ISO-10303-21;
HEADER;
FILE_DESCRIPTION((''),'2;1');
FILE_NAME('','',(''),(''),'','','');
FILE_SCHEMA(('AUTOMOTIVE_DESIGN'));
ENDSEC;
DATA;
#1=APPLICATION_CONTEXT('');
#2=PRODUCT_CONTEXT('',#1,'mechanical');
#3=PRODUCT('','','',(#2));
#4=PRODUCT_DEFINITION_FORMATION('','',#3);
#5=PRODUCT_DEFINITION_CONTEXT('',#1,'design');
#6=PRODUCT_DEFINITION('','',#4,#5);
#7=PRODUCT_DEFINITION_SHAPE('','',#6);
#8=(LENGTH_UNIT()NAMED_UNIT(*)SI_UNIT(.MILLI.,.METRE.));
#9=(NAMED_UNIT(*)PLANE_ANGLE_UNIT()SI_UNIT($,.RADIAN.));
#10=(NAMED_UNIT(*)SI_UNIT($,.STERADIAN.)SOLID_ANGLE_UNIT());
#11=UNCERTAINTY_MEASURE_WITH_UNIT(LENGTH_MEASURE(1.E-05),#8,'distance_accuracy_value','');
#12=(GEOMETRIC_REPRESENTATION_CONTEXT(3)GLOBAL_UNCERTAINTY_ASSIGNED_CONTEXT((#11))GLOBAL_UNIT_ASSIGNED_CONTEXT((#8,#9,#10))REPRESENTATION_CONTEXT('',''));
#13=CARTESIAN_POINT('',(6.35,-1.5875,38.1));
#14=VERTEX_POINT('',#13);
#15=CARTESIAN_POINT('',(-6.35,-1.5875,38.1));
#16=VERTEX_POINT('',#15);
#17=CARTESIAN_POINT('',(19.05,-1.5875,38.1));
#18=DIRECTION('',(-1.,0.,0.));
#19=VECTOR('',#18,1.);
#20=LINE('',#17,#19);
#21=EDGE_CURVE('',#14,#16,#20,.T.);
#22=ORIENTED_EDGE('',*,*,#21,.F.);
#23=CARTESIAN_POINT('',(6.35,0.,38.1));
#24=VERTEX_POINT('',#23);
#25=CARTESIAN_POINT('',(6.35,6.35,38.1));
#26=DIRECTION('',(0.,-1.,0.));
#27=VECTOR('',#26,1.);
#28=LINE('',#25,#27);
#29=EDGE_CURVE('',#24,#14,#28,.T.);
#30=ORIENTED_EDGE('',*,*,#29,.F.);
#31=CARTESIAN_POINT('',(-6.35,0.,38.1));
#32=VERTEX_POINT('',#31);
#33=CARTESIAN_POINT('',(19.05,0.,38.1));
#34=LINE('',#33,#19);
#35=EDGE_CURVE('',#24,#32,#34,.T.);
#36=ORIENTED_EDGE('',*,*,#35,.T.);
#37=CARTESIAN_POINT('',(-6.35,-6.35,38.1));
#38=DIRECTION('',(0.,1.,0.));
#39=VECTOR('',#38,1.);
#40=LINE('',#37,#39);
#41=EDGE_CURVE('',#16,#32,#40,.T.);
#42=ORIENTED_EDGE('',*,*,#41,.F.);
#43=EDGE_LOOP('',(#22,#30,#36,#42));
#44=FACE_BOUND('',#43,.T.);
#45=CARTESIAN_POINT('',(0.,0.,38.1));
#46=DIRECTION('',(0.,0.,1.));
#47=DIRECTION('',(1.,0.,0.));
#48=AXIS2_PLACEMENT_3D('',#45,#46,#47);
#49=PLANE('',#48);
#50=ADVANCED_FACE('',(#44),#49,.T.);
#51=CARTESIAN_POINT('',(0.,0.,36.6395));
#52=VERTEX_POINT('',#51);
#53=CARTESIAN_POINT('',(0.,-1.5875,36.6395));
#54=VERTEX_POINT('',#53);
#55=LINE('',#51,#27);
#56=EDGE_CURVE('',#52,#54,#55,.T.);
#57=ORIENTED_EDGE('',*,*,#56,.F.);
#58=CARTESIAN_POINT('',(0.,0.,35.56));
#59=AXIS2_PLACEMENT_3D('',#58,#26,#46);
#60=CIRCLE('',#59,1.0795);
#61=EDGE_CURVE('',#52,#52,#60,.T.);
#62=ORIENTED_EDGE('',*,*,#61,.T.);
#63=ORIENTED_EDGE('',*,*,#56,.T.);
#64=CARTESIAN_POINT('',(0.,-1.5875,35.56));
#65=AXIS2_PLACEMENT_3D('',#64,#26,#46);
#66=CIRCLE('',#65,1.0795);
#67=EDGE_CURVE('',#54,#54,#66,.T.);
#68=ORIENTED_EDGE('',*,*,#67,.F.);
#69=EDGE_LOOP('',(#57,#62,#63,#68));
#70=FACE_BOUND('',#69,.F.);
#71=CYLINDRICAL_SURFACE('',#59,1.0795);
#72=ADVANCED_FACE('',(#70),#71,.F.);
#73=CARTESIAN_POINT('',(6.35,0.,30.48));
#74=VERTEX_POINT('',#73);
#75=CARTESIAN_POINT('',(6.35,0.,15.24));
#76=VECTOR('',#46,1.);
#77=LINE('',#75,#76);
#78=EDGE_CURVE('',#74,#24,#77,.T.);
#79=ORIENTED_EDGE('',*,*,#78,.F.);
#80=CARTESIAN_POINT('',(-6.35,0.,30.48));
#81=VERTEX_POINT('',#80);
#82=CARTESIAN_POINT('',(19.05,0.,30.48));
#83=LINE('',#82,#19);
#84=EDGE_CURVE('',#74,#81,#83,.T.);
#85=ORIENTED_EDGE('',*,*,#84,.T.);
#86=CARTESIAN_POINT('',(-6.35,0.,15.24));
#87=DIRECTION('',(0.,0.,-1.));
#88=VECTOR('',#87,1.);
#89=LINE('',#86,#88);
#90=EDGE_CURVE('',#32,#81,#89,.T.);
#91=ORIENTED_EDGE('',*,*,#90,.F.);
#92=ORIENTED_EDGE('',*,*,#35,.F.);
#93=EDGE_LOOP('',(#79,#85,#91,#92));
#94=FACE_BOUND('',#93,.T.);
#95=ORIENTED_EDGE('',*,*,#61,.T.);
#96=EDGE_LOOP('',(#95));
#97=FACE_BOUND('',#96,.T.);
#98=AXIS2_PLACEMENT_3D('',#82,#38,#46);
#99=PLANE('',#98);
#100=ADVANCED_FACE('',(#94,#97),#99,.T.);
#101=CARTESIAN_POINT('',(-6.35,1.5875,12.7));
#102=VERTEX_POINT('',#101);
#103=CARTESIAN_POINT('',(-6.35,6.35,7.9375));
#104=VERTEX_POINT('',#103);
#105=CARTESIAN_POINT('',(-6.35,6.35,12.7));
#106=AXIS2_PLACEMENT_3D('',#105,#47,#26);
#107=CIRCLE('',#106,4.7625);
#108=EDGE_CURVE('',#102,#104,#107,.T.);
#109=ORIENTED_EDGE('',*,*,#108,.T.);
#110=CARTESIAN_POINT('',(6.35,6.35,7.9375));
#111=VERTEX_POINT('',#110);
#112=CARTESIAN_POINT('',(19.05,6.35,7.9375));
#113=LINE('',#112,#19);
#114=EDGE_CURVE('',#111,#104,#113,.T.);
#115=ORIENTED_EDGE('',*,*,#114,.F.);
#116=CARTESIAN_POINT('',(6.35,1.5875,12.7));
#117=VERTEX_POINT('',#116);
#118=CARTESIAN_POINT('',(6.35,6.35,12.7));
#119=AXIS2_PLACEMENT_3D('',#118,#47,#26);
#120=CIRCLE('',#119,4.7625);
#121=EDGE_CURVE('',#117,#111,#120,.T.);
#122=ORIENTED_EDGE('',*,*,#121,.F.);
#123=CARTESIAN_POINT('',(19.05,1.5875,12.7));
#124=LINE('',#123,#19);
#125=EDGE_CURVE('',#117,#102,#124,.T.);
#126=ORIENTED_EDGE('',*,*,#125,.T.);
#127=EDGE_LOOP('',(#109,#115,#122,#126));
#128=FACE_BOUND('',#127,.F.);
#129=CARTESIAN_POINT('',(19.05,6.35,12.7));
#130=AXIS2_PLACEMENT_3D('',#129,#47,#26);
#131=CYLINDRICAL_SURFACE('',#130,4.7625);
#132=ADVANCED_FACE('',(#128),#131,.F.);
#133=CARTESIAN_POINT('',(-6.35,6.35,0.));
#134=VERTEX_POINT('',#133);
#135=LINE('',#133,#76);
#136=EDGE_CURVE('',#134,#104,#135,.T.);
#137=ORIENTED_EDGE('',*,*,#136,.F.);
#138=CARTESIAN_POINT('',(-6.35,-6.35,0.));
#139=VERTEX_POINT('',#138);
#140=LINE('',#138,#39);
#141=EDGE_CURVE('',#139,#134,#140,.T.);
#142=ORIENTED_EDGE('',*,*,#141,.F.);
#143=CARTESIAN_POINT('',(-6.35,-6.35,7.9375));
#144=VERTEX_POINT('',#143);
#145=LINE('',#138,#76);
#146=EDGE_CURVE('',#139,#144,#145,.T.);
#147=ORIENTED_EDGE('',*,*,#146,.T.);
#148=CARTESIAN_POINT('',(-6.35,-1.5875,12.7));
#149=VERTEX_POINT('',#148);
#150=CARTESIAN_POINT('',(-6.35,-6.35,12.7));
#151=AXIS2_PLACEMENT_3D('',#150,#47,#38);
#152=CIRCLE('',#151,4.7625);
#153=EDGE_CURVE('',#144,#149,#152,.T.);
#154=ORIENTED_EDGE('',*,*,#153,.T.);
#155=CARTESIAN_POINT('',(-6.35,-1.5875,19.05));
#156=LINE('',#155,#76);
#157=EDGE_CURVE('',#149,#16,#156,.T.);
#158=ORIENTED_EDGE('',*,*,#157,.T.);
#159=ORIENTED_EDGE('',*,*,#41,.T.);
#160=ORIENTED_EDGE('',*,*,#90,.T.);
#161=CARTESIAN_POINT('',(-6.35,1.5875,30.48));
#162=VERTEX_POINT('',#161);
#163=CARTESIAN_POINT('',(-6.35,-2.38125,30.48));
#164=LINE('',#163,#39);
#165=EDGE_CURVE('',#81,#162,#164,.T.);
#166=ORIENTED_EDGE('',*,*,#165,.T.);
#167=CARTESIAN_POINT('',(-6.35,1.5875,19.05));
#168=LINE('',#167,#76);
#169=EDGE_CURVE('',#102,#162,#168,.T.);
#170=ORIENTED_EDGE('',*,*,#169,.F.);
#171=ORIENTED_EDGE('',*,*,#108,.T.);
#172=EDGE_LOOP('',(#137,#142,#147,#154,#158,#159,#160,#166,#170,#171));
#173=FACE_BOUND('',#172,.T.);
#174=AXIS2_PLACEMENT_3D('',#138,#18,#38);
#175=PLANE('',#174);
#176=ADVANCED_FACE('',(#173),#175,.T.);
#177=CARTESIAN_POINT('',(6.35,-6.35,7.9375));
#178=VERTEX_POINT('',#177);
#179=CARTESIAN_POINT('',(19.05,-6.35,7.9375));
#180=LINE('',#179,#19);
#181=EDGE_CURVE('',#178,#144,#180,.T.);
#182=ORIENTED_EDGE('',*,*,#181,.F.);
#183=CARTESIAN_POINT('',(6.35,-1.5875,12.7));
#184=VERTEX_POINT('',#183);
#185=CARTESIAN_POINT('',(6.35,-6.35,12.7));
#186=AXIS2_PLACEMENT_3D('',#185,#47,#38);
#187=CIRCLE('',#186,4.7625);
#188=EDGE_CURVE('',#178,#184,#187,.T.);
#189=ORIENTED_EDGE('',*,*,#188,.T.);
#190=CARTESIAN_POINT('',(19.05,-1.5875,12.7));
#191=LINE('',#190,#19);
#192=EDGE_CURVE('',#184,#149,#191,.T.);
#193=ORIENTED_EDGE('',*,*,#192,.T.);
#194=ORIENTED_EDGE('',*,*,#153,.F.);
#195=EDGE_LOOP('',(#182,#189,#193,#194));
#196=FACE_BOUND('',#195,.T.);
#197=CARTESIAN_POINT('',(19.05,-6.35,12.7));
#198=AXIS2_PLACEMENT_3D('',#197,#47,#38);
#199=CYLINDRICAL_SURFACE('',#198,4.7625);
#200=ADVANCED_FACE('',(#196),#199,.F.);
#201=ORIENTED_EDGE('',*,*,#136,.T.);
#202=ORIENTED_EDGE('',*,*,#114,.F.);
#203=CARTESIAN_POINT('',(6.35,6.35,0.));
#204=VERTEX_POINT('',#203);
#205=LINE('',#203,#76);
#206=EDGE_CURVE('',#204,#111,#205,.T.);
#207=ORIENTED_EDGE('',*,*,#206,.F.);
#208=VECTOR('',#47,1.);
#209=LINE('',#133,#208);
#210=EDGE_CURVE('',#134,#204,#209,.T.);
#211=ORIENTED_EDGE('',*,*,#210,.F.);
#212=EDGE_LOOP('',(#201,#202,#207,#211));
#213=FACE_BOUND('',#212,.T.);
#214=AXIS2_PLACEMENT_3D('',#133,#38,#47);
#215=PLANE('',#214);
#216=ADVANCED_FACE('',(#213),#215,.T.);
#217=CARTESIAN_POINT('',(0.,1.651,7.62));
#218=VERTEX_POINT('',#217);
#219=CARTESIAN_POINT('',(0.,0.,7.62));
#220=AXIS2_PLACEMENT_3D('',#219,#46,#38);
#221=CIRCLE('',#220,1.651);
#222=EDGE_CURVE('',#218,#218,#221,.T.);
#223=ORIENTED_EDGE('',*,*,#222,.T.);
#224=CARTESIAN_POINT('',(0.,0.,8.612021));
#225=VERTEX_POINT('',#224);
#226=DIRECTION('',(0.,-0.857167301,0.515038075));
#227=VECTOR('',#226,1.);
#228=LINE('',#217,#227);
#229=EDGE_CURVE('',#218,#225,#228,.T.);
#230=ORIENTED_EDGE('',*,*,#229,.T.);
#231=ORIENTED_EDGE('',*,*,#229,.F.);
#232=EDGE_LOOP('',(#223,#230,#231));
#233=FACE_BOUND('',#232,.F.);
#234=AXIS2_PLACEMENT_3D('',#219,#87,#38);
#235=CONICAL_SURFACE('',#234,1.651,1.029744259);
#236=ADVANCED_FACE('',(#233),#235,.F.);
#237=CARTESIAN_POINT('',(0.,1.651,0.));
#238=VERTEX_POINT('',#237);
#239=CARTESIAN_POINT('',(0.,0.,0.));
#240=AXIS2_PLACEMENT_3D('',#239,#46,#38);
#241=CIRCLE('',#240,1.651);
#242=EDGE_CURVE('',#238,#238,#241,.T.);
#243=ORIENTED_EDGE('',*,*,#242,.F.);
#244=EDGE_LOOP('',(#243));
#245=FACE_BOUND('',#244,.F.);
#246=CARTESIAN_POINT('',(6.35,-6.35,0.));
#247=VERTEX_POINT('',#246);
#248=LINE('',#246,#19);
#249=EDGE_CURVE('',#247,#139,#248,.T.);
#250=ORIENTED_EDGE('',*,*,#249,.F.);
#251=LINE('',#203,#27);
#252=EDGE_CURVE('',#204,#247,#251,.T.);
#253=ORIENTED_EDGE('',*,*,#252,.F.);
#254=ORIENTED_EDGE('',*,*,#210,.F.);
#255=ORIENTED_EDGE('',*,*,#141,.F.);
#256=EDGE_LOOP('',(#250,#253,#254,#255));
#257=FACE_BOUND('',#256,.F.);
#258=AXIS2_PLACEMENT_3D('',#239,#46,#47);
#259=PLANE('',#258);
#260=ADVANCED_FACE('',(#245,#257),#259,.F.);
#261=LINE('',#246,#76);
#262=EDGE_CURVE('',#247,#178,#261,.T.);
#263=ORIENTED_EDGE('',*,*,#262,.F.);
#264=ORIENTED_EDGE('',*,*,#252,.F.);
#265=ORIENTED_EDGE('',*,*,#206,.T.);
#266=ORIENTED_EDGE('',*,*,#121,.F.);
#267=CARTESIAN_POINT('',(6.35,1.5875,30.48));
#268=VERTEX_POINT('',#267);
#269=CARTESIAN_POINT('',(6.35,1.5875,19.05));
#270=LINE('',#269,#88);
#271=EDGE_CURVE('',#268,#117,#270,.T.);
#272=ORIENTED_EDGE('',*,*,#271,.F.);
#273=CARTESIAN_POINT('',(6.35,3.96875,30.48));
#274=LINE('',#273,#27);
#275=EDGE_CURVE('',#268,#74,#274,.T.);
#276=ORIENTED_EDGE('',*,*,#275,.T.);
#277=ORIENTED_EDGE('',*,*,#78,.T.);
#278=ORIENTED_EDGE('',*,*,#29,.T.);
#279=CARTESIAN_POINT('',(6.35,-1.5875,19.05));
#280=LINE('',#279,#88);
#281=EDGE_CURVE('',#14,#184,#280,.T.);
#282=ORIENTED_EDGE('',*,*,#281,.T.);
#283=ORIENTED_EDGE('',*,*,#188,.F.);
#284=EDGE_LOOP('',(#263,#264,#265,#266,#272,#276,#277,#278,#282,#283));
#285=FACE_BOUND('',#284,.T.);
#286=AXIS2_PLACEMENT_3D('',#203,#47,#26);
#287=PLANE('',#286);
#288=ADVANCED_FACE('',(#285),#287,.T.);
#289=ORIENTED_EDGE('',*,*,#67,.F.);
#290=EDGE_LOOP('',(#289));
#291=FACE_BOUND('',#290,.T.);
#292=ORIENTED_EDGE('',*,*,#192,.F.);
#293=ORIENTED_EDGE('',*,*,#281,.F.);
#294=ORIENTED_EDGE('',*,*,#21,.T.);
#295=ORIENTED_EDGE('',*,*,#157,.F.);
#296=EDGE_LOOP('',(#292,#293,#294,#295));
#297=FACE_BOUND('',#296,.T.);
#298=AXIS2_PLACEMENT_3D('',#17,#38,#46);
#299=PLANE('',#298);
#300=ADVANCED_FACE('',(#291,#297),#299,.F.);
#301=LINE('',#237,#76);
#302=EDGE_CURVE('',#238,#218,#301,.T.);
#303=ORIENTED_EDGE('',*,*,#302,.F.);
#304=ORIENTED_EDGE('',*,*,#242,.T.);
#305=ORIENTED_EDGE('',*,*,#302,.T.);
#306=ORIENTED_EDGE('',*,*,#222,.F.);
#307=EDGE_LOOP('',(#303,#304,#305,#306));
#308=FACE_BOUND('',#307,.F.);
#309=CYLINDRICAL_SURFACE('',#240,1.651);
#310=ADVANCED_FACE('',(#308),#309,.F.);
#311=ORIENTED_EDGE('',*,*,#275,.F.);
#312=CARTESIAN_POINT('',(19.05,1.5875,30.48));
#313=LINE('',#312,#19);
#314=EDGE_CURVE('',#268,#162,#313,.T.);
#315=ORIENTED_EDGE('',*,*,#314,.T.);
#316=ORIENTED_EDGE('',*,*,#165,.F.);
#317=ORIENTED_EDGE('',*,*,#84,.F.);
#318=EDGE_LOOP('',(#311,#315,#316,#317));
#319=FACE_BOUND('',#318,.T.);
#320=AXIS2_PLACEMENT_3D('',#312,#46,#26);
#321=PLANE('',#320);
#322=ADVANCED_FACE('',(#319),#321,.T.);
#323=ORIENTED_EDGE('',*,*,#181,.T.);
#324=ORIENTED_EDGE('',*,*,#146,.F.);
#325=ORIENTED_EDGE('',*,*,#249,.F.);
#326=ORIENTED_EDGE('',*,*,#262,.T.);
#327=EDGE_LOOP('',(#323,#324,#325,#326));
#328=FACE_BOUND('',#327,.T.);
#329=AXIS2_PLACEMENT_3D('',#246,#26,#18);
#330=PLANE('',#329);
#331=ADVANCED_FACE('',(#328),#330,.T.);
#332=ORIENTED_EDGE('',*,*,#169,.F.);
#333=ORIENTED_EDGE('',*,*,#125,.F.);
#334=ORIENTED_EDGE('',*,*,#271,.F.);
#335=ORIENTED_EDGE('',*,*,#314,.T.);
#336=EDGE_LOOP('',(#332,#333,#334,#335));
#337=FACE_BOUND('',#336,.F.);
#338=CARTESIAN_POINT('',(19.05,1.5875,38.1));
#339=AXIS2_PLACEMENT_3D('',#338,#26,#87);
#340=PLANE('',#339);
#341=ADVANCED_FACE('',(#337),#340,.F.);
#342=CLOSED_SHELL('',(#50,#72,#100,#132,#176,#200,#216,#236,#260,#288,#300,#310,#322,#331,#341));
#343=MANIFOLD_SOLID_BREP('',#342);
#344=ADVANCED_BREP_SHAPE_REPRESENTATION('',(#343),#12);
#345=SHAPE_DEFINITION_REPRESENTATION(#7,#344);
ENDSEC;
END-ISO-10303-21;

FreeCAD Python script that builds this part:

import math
import FreeCAD as App
import Part
import Sketcher
Q = App.Units.Quantity


def add_polygon(sketch, points):
    """Adds a closed chain of lines whose ends are joined by coincident constraints."""
    first, n = sketch.GeometryCount, len(points)
    for a, b in zip(points, points[1:] + points[:1]):
        sketch.addGeometry(Part.LineSegment(App.Vector(*a, 0), App.Vector(*b, 0)), False)
    for i in range(n):
        sketch.addConstraint(Sketcher.Constraint("Coincident", first + i, 2, first + (i + 1) % n, 1))

doc = App.newDocument("Part")
params = doc.addObject("Spreadsheet::Sheet", "Params")
for row, (alias, value) in enumerate([
    ("sketch1_width", "0.5 in"),
    ("pad1_length", "1.5 in"),
    ("sketch2_height", "1 in"),
    ("sketch2_radius", "0.1875 in"),
    ("pocket1_length", "1.5 in"),
    ("sketch3_height", "0.3 in"),
    ("sketch3_width", "0.0625 in"),
    ("pocket2_length", "1.5 in"),
    ("sketch4_diameter", "0.085 in"),
    ("hole_diameter", "0.085 in"),
    ("sketch5_diameter", "0.13 in"),
    ("hole2_diameter", "0.13 in"),
    ("hole2_depth", "0.3 in"),
], start=1):
    params.set(f"A{row}", alias)
    params.set(f"B{row}", "=" + value)
    params.setAlias(f"B{row}", alias)

body = doc.addObject("PartDesign::Body", "Body")

sketch1 = doc.addObject("Sketcher::SketchObject", "Sketch")
body.addObject(sketch1)
sketch1.AttachmentSupport = (doc.XY_Plane, [""])
sketch1.MapMode = "FlatFace"
add_polygon(sketch1, [(6, 6), (-6, 6), (-6, -6), (6, -6)])
sketch1.addConstraint([
    Sketcher.Constraint("Horizontal", 0),
    Sketcher.Constraint("Vertical", 1),
    Sketcher.Constraint("Horizontal", 2),
    Sketcher.Constraint("Vertical", 3),
    Sketcher.Constraint("Symmetric", 0, 2, 2, 2, -1, 1),
    Sketcher.Constraint("Equal", 2, 1),
    Sketcher.Constraint("DistanceX", 0, 2, 0, 1, Q("0.5 in")),
])
sketch1.setExpression("Constraints[10]", "Params.sketch1_width")
pad1 = doc.addObject("PartDesign::Pad", "Pad")
body.addObject(pad1)
pad1.Profile = sketch1
pad1.setExpression("Length", "Params.pad1_length")

sketch2 = doc.addObject("Sketcher::SketchObject", "Sketch001")
body.addObject(sketch2)
sketch2.AttachmentSupport = (doc.YZ_Plane, [""])
sketch2.MapMode = "FlatFace"
sketch2.AttachmentOffset = App.Placement(App.Vector(0, 0, 0.75 * 25.4), App.Rotation())
sketch2.addGeometry([
    Part.LineSegment(App.Vector(6.3, 7.9, 0), App.Vector(6.3, 38.1, 0)),
    Part.LineSegment(App.Vector(6.3, 38.1, 0), App.Vector(1.6, 38.1, 0)),
    Part.LineSegment(App.Vector(1.6, 38.1, 0), App.Vector(1.6, 12.7, 0)),
    Part.ArcOfCircle(Part.Circle(App.Vector(6.3, 12.7, 0), App.Vector(0, 0, 1), 4.8), math.radians(180), math.radians(270)),
], False)
sketch2.addConstraint([
    Sketcher.Constraint("Coincident", 0, 2, 1, 1),
    Sketcher.Constraint("Coincident", 1, 2, 2, 1),
    Sketcher.Constraint("Tangent", 2, 2, 3, 1),
    Sketcher.Constraint("Coincident", 3, 2, 0, 1),
    Sketcher.Constraint("Vertical", 0),
    Sketcher.Constraint("Horizontal", 1),
    Sketcher.Constraint("Vertical", 2),
    Sketcher.Constraint("Vertical", 3, 3, 0, 2),
    Sketcher.Constraint("DistanceY", 2, 2, 2, 1, Q("1 in")),
    Sketcher.Constraint("Radius", 3, Q("0.1875 in")),
    Sketcher.Constraint("DistanceX", -1, 1, 1, 2, Q("0.0625 in")),
    Sketcher.Constraint("DistanceY", -1, 1, 3, 3, Q("0.5 in")),
])
sketch2.setExpression("Constraints[8]", "Params.sketch2_height")
sketch2.setExpression("Constraints[9]", "Params.sketch2_radius")
pocket1 = doc.addObject("PartDesign::Pocket", "Pocket")
body.addObject(pocket1)
pocket1.Profile = sketch2
pocket1.setExpression("Length", "Params.pocket1_length")
doc.recompute()

mirrored = doc.addObject("PartDesign::Mirrored", "Mirrored")
body.addObject(mirrored)
mirrored.Originals = [pocket1]
mirrored.MirrorPlane = (doc.XZ_Plane, [""])
body.Tip = mirrored

sketch3 = doc.addObject("Sketcher::SketchObject", "Sketch002")
body.addObject(sketch3)
sketch3.AttachmentSupport = (doc.YZ_Plane, [""])
sketch3.MapMode = "FlatFace"
sketch3.AttachmentOffset = App.Placement(App.Vector(0, 0, 0.75 * 25.4), App.Rotation())
add_polygon(sketch3, [(1.6, 38.1), (0, 38.1), (0, 30.5), (1.6, 30.5)])
sketch3.addConstraint([
    Sketcher.Constraint("Horizontal", 0),
    Sketcher.Constraint("Vertical", 1),
    Sketcher.Constraint("Horizontal", 2),
    Sketcher.Constraint("Vertical", 3),
    Sketcher.Constraint("PointOnObject", 0, 2, -2),
    Sketcher.Constraint("DistanceY", 1, 2, 1, 1, Q("0.3 in")),
    Sketcher.Constraint("DistanceX", 0, 2, 0, 1, Q("0.0625 in")),
    Sketcher.Constraint("DistanceY", -1, 1, 0, 2, Q("1.5 in")),
])
sketch3.setExpression("Constraints[9]", "Params.sketch3_height")
sketch3.setExpression("Constraints[10]", "Params.sketch3_width")
pocket2 = doc.addObject("PartDesign::Pocket", "Pocket001")
body.addObject(pocket2)
pocket2.Profile = sketch3
pocket2.setExpression("Length", "Params.pocket2_length")

sketch4 = doc.addObject("Sketcher::SketchObject", "Sketch003")
body.addObject(sketch4)
sketch4.AttachmentSupport = (doc.XZ_Plane, [""])
sketch4.MapMode = "FlatFace"
sketch4.addGeometry(Part.Circle(App.Vector(0, 35.6, 0), App.Vector(0, 0, 1), 1.1), False)
sketch4.addConstraint([
    Sketcher.Constraint("PointOnObject", 0, 3, -2),
    Sketcher.Constraint("Diameter", 0, Q("0.085 in")),
    Sketcher.Constraint("DistanceY", -1, 1, 0, 3, Q("1.4 in")),
])
sketch4.setExpression("Constraints[1]", "Params.sketch4_diameter")
doc.recompute()
hole = doc.addObject("PartDesign::Hole", "Hole")
body.addObject(hole)
hole.Profile = sketch4
hole.ThreadType = "None"
hole.setExpression("Diameter", "Params.hole_diameter")
hole.DepthType = "ThroughAll"
hole.Reversed = True

sketch5 = doc.addObject("Sketcher::SketchObject", "Sketch004")
body.addObject(sketch5)
sketch5.AttachmentSupport = (doc.XY_Plane, [""])
sketch5.MapMode = "FlatFace"
sketch5.addGeometry(Part.Circle(App.Vector(0, 0, 0), App.Vector(0, 0, 1), 1.7), False)
sketch5.addConstraint([
    Sketcher.Constraint("Coincident", 0, 3, -1, 1),
    Sketcher.Constraint("Diameter", 0, Q("0.13 in")),
])
sketch5.setExpression("Constraints[1]", "Params.sketch5_diameter")
doc.recompute()
hole2 = doc.addObject("PartDesign::Hole", "Hole001")
body.addObject(hole2)
hole2.Profile = sketch5
hole2.ThreadType = "None"
hole2.setExpression("Diameter", "Params.hole2_diameter")
hole2.DepthType = "Dimension"
hole2.setExpression("Depth", "Params.hole2_depth")
hole2.DrillPoint = "Angled"
hole2.DrillPointAngle = 118
hole2.Reversed = True

doc.recompute()
